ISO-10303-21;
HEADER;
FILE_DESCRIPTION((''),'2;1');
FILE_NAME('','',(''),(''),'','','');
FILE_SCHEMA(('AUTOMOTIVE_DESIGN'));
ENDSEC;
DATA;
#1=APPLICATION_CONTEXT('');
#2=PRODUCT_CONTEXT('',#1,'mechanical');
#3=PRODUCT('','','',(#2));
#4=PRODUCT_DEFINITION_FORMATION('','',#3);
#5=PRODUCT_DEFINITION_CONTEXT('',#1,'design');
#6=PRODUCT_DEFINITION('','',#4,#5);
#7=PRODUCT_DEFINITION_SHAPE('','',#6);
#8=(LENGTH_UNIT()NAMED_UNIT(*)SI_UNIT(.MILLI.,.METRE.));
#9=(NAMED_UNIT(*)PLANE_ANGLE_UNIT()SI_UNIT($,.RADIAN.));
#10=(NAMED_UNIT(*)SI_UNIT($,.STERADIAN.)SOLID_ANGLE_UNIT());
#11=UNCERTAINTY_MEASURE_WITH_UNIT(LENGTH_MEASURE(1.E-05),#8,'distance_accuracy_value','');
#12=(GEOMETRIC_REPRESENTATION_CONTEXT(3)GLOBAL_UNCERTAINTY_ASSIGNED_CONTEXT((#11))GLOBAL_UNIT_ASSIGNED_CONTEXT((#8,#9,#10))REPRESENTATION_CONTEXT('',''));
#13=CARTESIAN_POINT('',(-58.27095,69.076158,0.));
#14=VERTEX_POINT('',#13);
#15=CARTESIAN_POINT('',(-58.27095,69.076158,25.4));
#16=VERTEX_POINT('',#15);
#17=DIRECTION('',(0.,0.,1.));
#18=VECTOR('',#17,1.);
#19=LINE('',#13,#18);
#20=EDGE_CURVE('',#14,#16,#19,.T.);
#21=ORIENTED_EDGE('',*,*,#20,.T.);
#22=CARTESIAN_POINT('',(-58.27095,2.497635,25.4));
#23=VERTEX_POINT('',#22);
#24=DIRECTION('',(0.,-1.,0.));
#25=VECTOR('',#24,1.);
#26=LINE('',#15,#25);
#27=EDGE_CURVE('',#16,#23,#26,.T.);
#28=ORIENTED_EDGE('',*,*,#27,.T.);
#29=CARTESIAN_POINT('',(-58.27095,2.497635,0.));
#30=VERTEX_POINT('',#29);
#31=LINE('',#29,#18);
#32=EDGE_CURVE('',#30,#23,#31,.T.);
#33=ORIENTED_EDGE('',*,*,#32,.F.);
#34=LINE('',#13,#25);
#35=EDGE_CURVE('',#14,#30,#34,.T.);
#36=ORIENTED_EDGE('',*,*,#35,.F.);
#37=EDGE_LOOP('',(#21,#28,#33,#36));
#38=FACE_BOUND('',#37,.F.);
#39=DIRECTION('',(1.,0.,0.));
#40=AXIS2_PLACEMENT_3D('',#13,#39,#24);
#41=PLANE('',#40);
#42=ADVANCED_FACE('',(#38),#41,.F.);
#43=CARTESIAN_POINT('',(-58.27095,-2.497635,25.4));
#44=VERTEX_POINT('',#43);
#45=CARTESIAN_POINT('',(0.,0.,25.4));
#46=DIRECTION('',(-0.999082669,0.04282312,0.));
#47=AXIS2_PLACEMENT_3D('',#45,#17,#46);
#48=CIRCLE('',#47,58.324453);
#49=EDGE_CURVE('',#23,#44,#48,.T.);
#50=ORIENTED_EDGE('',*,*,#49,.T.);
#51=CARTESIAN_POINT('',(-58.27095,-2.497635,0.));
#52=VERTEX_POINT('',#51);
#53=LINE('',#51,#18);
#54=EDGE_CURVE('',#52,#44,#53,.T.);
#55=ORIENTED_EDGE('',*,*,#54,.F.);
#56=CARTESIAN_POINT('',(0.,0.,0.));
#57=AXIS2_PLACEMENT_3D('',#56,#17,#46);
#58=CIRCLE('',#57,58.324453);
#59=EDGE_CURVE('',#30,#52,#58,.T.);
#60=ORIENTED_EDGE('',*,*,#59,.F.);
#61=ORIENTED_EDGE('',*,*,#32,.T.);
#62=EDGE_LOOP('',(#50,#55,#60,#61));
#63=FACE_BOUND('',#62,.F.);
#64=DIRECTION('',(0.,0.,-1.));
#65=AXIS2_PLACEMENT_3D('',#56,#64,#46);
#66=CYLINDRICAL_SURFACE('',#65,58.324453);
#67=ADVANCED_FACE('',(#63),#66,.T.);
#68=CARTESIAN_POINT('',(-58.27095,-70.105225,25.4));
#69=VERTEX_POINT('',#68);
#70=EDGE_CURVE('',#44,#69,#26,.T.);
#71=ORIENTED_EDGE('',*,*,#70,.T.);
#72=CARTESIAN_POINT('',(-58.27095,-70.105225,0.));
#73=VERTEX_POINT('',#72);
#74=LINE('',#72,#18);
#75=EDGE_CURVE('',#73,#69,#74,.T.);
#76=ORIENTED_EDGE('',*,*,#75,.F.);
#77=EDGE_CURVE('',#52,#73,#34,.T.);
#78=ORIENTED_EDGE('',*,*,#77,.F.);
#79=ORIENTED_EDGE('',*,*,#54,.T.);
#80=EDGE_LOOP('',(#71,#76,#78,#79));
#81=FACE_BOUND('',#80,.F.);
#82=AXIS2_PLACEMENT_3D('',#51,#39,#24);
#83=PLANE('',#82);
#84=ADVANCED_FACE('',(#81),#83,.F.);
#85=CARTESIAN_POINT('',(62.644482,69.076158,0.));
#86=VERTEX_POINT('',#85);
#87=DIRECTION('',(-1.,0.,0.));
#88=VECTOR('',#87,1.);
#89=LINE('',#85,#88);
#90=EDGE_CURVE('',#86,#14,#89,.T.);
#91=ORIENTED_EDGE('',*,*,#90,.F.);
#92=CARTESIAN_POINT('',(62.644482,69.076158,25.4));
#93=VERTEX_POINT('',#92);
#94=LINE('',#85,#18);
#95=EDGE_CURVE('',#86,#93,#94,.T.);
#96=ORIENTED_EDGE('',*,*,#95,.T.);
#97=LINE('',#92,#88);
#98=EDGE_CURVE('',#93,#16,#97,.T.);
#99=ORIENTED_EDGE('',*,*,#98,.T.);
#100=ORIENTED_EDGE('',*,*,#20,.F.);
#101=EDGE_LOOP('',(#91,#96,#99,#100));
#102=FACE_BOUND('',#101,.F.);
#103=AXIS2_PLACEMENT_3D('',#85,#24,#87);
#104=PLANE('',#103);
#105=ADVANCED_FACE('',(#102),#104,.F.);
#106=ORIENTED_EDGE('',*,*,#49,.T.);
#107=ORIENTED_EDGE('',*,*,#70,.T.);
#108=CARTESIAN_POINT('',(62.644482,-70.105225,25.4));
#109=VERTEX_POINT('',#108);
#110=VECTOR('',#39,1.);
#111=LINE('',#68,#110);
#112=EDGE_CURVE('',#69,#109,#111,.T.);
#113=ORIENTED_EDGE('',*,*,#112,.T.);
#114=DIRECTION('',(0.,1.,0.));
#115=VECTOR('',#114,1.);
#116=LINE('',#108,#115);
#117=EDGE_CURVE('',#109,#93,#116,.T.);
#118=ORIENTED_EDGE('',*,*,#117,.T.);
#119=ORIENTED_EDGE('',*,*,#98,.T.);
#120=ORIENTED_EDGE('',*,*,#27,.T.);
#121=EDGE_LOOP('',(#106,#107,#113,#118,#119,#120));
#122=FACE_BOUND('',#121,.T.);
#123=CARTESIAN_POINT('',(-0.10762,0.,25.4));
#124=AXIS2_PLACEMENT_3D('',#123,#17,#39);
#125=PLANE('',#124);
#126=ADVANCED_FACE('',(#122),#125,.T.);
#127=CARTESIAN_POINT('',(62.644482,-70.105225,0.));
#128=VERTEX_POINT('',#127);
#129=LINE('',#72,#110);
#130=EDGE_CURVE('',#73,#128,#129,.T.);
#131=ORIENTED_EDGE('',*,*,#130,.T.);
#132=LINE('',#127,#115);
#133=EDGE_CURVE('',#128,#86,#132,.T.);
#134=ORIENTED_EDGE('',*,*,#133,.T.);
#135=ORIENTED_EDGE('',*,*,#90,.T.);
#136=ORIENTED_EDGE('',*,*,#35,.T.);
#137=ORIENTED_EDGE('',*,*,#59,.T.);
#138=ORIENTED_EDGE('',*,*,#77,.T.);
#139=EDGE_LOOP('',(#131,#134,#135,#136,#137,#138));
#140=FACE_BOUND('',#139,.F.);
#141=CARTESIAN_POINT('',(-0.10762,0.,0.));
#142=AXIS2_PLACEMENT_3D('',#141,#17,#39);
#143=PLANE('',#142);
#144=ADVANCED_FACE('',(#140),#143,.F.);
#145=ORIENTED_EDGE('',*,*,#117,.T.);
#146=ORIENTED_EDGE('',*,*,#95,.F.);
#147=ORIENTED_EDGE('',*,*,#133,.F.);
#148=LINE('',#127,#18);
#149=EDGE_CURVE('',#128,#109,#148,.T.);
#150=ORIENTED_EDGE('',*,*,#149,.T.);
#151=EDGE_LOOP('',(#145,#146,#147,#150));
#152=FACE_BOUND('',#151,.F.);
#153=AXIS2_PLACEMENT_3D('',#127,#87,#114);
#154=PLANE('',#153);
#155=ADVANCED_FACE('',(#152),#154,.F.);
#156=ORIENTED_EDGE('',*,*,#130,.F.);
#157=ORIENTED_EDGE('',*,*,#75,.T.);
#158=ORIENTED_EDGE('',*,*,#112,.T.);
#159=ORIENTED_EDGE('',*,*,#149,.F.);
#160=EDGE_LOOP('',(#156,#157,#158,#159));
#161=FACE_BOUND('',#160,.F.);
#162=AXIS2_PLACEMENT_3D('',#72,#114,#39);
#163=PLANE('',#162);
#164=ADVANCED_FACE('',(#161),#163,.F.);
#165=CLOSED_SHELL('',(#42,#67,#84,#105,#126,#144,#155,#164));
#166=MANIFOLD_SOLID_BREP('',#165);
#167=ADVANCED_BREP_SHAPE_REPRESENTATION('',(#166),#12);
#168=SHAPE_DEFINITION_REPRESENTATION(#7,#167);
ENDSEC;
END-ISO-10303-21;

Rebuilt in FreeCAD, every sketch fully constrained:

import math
import FreeCAD as App
import Part
import Sketcher
Q = App.Units.Quantity

doc = App.newDocument("Part")
body = doc.addObject("PartDesign::Body", "Body")

sketch1 = doc.addObject("Sketcher::SketchObject", "Sketch")
body.addObject(sketch1)
sketch1.AttachmentSupport = (doc.XY_Plane, [""])
sketch1.MapMode = "FlatFace"
sketch1.addGeometry(Part.LineSegment(App.Vector(-58.3, -70.1, 0), App.Vector(62.6, -70.1, 0)), False)
sketch1.addGeometry(Part.LineSegment(App.Vector(62.6, -70.1, 0), App.Vector(62.6, 69.1, 0)), False)
sketch1.addGeometry(Part.LineSegment(App.Vector(62.6, 69.1, 0), App.Vector(-58.3, 69.1, 0)), False)
sketch1.addGeometry(Part.LineSegment(App.Vector(-58.3, 69.1, 0), App.Vector(-58.3, 2.5, 0)), False)
sketch1.addGeometry(Part.ArcOfCircle(Part.Circle(App.Vector(0, 0, 0), App.Vector(0, 0, 1), 58.3), math.radians(177.55), math.radians(182.45)), False)
sketch1.addGeometry(Part.LineSegment(App.Vector(-58.3, -2.5, 0), App.Vector(-58.3, -70.1, 0)), False)
sketch1.addConstraint(Sketcher.Constraint("Coincident", 0, 2, 1, 1))
sketch1.addConstraint(Sketcher.Constraint("Coincident", 1, 2, 2, 1))
sketch1.addConstraint(Sketcher.Constraint("Coincident", 2, 2, 3, 1))
sketch1.addConstraint(Sketcher.Constraint("Coincident", 3, 2, 4, 1))
sketch1.addConstraint(Sketcher.Constraint("Coincident", 4, 2, 5, 1))
sketch1.addConstraint(Sketcher.Constraint("Coincident", 5, 2, 0, 1))
sketch1.addConstraint(Sketcher.Constraint("Horizontal", 0))
sketch1.addConstraint(Sketcher.Constraint("Vertical", 1))
sketch1.addConstraint(Sketcher.Constraint("Horizontal", 2))
sketch1.addConstraint(Sketcher.Constraint("Vertical", 3))
sketch1.addConstraint(Sketcher.Constraint("Vertical", 5))
sketch1.addConstraint(Sketcher.Constraint("Coincident", 4, 3, -1, 1))
sketch1.addConstraint(Sketcher.Constraint("Vertical", 3, 2, 4, 2))
sketch1.addConstraint(Sketcher.Constraint("Radius", 4, 58.324453))
sketch1.addConstraint(Sketcher.Constraint("DistanceX", 0, 1, 0, 2, 120.915432))
sketch1.addConstraint(Sketcher.Constraint("DistanceY", 5, 2, 5, 1, 67.60759))
sketch1.addConstraint(Sketcher.Constraint("DistanceY", 1, 1, 1, 2, 139.181383))
sketch1.addConstraint(Sketcher.Constraint("DistanceY", 3, 2, 3, 1, 66.578523))
pad1 = doc.addObject("PartDesign::Pad", "Pad")
body.addObject(pad1)
pad1.Profile = sketch1
pad1.Length = Q("1 in")

doc.recompute()
